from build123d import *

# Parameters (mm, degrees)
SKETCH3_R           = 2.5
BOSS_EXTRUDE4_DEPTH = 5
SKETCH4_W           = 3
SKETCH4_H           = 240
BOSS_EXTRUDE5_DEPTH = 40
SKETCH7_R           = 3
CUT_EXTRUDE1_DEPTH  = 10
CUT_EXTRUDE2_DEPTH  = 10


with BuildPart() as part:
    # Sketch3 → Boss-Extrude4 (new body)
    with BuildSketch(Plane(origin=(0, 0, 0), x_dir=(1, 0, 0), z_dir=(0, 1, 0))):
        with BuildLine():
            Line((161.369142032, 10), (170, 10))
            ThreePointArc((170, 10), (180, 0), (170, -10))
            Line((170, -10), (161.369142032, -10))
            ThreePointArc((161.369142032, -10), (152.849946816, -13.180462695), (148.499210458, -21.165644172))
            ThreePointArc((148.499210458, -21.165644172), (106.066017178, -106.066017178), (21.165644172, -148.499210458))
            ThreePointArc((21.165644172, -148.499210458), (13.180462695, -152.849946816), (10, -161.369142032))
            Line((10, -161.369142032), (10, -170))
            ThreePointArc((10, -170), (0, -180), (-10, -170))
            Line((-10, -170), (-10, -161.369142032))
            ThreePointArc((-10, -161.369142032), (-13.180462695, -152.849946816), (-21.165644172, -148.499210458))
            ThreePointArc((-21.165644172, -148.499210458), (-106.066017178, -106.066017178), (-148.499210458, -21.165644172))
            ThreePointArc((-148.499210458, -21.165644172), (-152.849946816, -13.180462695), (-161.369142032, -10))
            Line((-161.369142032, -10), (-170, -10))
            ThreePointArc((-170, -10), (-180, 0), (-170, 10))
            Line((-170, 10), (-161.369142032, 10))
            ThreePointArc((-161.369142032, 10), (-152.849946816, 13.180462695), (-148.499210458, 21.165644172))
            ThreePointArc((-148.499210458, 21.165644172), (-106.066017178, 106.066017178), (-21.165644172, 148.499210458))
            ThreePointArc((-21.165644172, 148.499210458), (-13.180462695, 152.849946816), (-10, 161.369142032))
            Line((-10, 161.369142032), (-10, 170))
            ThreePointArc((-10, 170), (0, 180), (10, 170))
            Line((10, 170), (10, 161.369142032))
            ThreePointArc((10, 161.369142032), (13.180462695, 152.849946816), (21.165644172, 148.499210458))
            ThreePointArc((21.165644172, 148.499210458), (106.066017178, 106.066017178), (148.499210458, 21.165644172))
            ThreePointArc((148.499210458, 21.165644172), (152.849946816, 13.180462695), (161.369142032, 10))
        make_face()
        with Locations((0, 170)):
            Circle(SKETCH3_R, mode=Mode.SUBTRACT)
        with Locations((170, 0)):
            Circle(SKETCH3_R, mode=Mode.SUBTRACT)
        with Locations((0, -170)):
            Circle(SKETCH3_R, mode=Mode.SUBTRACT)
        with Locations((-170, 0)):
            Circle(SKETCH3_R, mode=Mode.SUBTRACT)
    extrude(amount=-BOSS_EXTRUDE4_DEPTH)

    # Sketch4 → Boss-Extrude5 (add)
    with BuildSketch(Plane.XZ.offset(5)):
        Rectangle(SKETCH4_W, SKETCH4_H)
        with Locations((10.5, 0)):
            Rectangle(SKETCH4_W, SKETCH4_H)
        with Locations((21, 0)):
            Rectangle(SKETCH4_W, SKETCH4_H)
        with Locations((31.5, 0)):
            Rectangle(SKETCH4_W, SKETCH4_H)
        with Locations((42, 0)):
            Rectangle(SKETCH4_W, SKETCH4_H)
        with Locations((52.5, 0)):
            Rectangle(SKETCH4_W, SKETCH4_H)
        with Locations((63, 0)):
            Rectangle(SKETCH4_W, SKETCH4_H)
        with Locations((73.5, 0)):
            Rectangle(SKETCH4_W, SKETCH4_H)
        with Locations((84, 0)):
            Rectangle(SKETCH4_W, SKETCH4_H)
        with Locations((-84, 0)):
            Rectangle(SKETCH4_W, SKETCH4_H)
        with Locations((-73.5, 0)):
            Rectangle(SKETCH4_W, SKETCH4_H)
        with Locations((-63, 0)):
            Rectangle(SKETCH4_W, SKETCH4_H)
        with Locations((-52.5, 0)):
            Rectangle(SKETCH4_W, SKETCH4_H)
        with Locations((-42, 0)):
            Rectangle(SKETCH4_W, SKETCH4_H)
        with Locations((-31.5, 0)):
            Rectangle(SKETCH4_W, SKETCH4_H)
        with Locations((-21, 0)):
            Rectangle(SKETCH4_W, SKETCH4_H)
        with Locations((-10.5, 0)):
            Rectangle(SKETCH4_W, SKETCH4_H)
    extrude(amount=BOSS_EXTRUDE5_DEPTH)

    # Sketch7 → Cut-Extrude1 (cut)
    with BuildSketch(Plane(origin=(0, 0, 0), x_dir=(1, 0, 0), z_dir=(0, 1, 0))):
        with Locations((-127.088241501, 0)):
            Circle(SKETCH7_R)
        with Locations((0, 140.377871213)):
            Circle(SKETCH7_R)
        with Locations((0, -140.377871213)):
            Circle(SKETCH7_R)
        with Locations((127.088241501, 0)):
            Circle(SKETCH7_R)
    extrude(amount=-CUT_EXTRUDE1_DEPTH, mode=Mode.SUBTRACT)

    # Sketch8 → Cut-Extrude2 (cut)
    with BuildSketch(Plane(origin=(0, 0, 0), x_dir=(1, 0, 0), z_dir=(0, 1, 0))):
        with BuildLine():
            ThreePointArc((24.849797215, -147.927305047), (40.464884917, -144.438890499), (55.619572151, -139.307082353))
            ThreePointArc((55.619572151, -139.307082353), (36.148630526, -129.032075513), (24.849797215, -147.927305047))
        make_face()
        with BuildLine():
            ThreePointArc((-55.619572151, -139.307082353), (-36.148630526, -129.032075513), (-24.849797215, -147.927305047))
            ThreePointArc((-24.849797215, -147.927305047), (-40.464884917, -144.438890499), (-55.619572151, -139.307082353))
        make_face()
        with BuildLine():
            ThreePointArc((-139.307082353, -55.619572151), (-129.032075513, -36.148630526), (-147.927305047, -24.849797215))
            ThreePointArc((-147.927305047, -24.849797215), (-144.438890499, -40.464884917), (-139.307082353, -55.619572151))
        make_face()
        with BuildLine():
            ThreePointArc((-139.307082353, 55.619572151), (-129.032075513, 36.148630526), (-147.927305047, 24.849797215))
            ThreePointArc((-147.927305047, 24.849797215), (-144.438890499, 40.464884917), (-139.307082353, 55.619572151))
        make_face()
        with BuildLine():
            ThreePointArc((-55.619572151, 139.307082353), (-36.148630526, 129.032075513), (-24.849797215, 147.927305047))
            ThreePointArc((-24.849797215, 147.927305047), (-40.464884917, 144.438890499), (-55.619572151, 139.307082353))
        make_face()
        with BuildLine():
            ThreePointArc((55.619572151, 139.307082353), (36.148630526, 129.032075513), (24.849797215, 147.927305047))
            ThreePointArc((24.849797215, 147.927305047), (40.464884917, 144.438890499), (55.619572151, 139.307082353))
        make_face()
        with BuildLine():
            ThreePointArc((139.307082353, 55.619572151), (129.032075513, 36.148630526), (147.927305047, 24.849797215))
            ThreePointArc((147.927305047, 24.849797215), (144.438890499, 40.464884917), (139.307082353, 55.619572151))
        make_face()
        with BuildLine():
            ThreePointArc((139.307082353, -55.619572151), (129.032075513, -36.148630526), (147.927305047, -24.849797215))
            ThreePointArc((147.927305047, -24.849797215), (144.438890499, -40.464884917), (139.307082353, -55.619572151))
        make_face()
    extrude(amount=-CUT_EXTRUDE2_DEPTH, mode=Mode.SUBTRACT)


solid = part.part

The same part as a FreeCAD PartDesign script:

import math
import FreeCAD as App
import Part
import Sketcher


def add_polygon(sketch, points):
    """Adds a closed chain of lines whose ends are joined by coincident constraints."""
    first, n = sketch.GeometryCount, len(points)
    for a, b in zip(points, points[1:] + points[:1]):
        sketch.addGeometry(Part.LineSegment(App.Vector(*a, 0), App.Vector(*b, 0)), False)
    for i in range(n):
        sketch.addConstraint(Sketcher.Constraint("Coincident", first + i, 2, first + (i + 1) % n, 1))

doc = App.newDocument("Part")
body = doc.addObject("PartDesign::Body", "Body")

# Sketch on XZ plane
sketch1 = body.newObject("Sketcher::SketchObject", "Sketch")
sketch1.AttachmentSupport = (doc.getObject("XZ_Plane"), [""])
sketch1.MapMode = "FlatFace"
sketch1.addGeometry(Part.LineSegment(App.Vector(170, -10, 0), App.Vector(161.4, -10, 0)), False)
sketch1.addGeometry(Part.ArcOfCircle(Part.Circle(App.Vector(161.4, -23, 0), App.Vector(0, 0, 1), 13), math.radians(90), math.radians(172)), False)
sketch1.addGeometry(Part.ArcOfCircle(Part.Circle(App.Vector(0, 0, 0), App.Vector(0, 0, 1), 150), math.radians(-82), math.radians(-8)), False)
sketch1.addGeometry(Part.ArcOfCircle(Part.Circle(App.Vector(23, -161.4, 0), App.Vector(0, 0, 1), 13), math.radians(98), math.radians(180)), False)
sketch1.addGeometry(Part.LineSegment(App.Vector(10, -161.4, 0), App.Vector(10, -170, 0)), False)
sketch1.addGeometry(Part.ArcOfCircle(Part.Circle(App.Vector(0, -170, 0), App.Vector(0, 0, 1), 10), math.radians(180), math.radians(360)), False)
sketch1.addGeometry(Part.LineSegment(App.Vector(-10, -170, 0), App.Vector(-10, -161.4, 0)), False)
sketch1.addGeometry(Part.ArcOfCircle(Part.Circle(App.Vector(-23, -161.4, 0), App.Vector(0, 0, 1), 13), math.radians(0), math.radians(82)), False)
sketch1.addGeometry(Part.ArcOfCircle(Part.Circle(App.Vector(0, 0, 0), App.Vector(0, 0, 1), 150), math.radians(-172), math.radians(-98)), False)
sketch1.addGeometry(Part.ArcOfCircle(Part.Circle(App.Vector(-161.4, -23, 0), App.Vector(0, 0, 1), 13), math.radians(8), math.radians(90)), False)
sketch1.addGeometry(Part.LineSegment(App.Vector(-161.4, -10, 0), App.Vector(-170, -10, 0)), False)
sketch1.addGeometry(Part.ArcOfCircle(Part.Circle(App.Vector(-170, 0, 0), App.Vector(0, 0, 1), 10), math.radians(90), math.radians(270)), False)
sketch1.addGeometry(Part.LineSegment(App.Vector(-170, 10, 0), App.Vector(-161.4, 10, 0)), False)
sketch1.addGeometry(Part.ArcOfCircle(Part.Circle(App.Vector(-161.4, 23, 0), App.Vector(0, 0, 1), 13), math.radians(-90), math.radians(-8)), False)
sketch1.addGeometry(Part.ArcOfCircle(Part.Circle(App.Vector(0, 0, 0), App.Vector(0, 0, 1), 150), math.radians(98), math.radians(172)), False)
sketch1.addGeometry(Part.ArcOfCircle(Part.Circle(App.Vector(-23, 161.4, 0), App.Vector(0, 0, 1), 13), math.radians(-82), math.radians(0)), False)
sketch1.addGeometry(Part.LineSegment(App.Vector(-10, 161.4, 0), App.Vector(-10, 170, 0)), False)
sketch1.addGeometry(Part.ArcOfCircle(Part.Circle(App.Vector(0, 170, 0), App.Vector(0, 0, 1), 10), math.radians(0), math.radians(180)), False)
sketch1.addGeometry(Part.LineSegment(App.Vector(10, 170, 0), App.Vector(10, 161.4, 0)), False)
sketch1.addGeometry(Part.ArcOfCircle(Part.Circle(App.Vector(23, 161.4, 0), App.Vector(0, 0, 1), 13), math.radians(180), math.radians(262)), False)
sketch1.addGeometry(Part.ArcOfCircle(Part.Circle(App.Vector(0, 0, 0), App.Vector(0, 0, 1), 150), math.radians(8), math.radians(82)), False)
sketch1.addGeometry(Part.ArcOfCircle(Part.Circle(App.Vector(161.4, 23, 0), App.Vector(0, 0, 1), 13), math.radians(-172), math.radians(-90)), False)
sketch1.addGeometry(Part.LineSegment(App.Vector(161.4, 10, 0), App.Vector(170, 10, 0)), False)
sketch1.addGeometry(Part.ArcOfCircle(Part.Circle(App.Vector(170, 0, 0), App.Vector(0, 0, 1), 10), math.radians(-90), math.radians(90)), False)
sketch1.addGeometry(Part.Circle(App.Vector(0, 170, 0), App.Vector(0, 0, 1), 2.5), False)
sketch1.addGeometry(Part.Circle(App.Vector(170, 0, 0), App.Vector(0, 0, 1), 2.5), False)
sketch1.addGeometry(Part.Circle(App.Vector(-170, 0, 0), App.Vector(0, 0, 1), 2.5), False)
sketch1.addGeometry(Part.Circle(App.Vector(0, -170, 0), App.Vector(0, 0, 1), 2.5), False)
sketch1.addConstraint(Sketcher.Constraint("Tangent", 0, 2, 1, 1))
sketch1.addConstraint(Sketcher.Constraint("Tangent", 1, 2, 2, 2))
sketch1.addConstraint(Sketcher.Constraint("Tangent", 2, 1, 3, 1))
sketch1.addConstraint(Sketcher.Constraint("Tangent", 3, 2, 4, 1))
sketch1.addConstraint(Sketcher.Constraint("Tangent", 4, 2, 5, 2))
sketch1.addConstraint(Sketcher.Constraint("Tangent", 5, 1, 6, 1))
sketch1.addConstraint(Sketcher.Constraint("Tangent", 6, 2, 7, 1))
sketch1.addConstraint(Sketcher.Constraint("Tangent", 7, 2, 8, 2))
sketch1.addConstraint(Sketcher.Constraint("Tangent", 8, 1, 9, 1))
sketch1.addConstraint(Sketcher.Constraint("Tangent", 9, 2, 10, 1))
sketch1.addConstraint(Sketcher.Constraint("Tangent", 10, 2, 11, 2))
sketch1.addConstraint(Sketcher.Constraint("Tangent", 11, 1, 12, 1))
sketch1.addConstraint(Sketcher.Constraint("Tangent", 12, 2, 13, 1))
sketch1.addConstraint(Sketcher.Constraint("Tangent", 13, 2, 14, 2))
sketch1.addConstraint(Sketcher.Constraint("Tangent", 14, 1, 15, 1))
sketch1.addConstraint(Sketcher.Constraint("Tangent", 15, 2, 16, 1))
sketch1.addConstraint(Sketcher.Constraint("Tangent", 16, 2, 17, 2))
sketch1.addConstraint(Sketcher.Constraint("Tangent", 17, 1, 18, 1))
sketch1.addConstraint(Sketcher.Constraint("Tangent", 18, 2, 19, 1))
sketch1.addConstraint(Sketcher.Constraint("Tangent", 19, 2, 20, 2))
sketch1.addConstraint(Sketcher.Constraint("Tangent", 20, 1, 21, 1))
sketch1.addConstraint(Sketcher.Constraint("Tangent", 21, 2, 22, 1))
sketch1.addConstraint(Sketcher.Constraint("Tangent", 22, 2, 23, 2))
sketch1.addConstraint(Sketcher.Constraint("Tangent", 23, 1, 0, 1))
sketch1.addConstraint(Sketcher.Constraint("Horizontal", 0))
sketch1.addConstraint(Sketcher.Constraint("Vertical", 4))
sketch1.addConstraint(Sketcher.Constraint("Vertical", 6))
sketch1.addConstraint(Sketcher.Constraint("Horizontal", 10))
sketch1.addConstraint(Sketcher.Constraint("Horizontal", 12))
sketch1.addConstraint(Sketcher.Constraint("Vertical", 16))
sketch1.addConstraint(Sketcher.Constraint("Vertical", 18))
sketch1.addConstraint(Sketcher.Constraint("Horizontal", 22))
sketch1.addConstraint(Sketcher.Constraint("Coincident", 2, 3, -1, 1))
sketch1.addConstraint(Sketcher.Constraint("Coincident", 8, 3, -1, 1))
sketch1.addConstraint(Sketcher.Constraint("Coincident", 14, 3, -1, 1))
sketch1.addConstraint(Sketcher.Constraint("Coincident", 20, 3, -1, 1))
sketch1.addConstraint(Sketcher.Constraint("Coincident", 24, 3, 17, 3))
sketch1.addConstraint(Sketcher.Constraint("Coincident", 25, 3, 23, 3))
sketch1.addConstraint(Sketcher.Constraint("Coincident", 26, 3, 11, 3))
sketch1.addConstraint(Sketcher.Constraint("Coincident", 27, 3, 5, 3))
sketch1.addConstraint(Sketcher.Constraint("Equal", 1, 3))
sketch1.addConstraint(Sketcher.Constraint("Equal", 3, 7))
sketch1.addConstraint(Sketcher.Constraint("Equal", 2, 8))
sketch1.addConstraint(Sketcher.Constraint("Equal", 7, 9))
sketch1.addConstraint(Sketcher.Constraint("Equal", 5, 11))
sketch1.addConstraint(Sketcher.Constraint("Equal", 9, 13))
sketch1.addConstraint(Sketcher.Constraint("Equal", 8, 14))
sketch1.addConstraint(Sketcher.Constraint("Equal", 13, 15))
sketch1.addConstraint(Sketcher.Constraint("Equal", 11, 17))
sketch1.addConstraint(Sketcher.Constraint("Equal", 15, 19))
sketch1.addConstraint(Sketcher.Constraint("Equal", 14, 20))
sketch1.addConstraint(Sketcher.Constraint("Equal", 19, 21))
sketch1.addConstraint(Sketcher.Constraint("Equal", 17, 23))
sketch1.addConstraint(Sketcher.Constraint("Equal", 24, 25))
sketch1.addConstraint(Sketcher.Constraint("Equal", 25, 26))
sketch1.addConstraint(Sketcher.Constraint("Equal", 26, 27))
sketch1.addConstraint(Sketcher.Constraint("Symmetric", 5, 3, 17, 3, -1, 1))
sketch1.addConstraint(Sketcher.Constraint("Symmetric", 11, 3, 23, 3, -1, 1))
sketch1.addConstraint(Sketcher.Constraint("PointOnObject", 5, 3, -2))
sketch1.addConstraint(Sketcher.Constraint("PointOnObject", 11, 3, -1))
sketch1.addConstraint(Sketcher.Constraint("Equal", 22, 4))
sketch1.addConstraint(Sketcher.Constraint("Diameter", 24, 5.0))
sketch1.addConstraint(Sketcher.Constraint("Radius", 1, 13.0))
sketch1.addConstraint(Sketcher.Constraint("Radius", 2, 150.0))
sketch1.addConstraint(Sketcher.Constraint("Radius", 5, 10.0))
sketch1.addConstraint(Sketcher.Constraint("DistanceY", 5, 3, -1, 1, 170.0))
pad1 = body.newObject("PartDesign::Pad", "Pad")
pad1.Profile = sketch1
pad1.Length = 5

# Sketch on XZ plane
sketch2 = body.newObject("Sketcher::SketchObject", "Sketch001")
sketch2.AttachmentSupport = (doc.getObject("XZ_Plane"), [""])
sketch2.MapMode = "FlatFace"
sketch2.AttachmentOffset = App.Placement(App.Vector(0, 0, 5), App.Rotation())
add_polygon(sketch2, [(-1.5, 120), (-1.5, -120), (1.5, -120), (1.5, 120)])  # lines 0-3
add_polygon(sketch2, [(9, 120), (9, -120), (12, -120), (12, 120)])  # lines 4-7
add_polygon(sketch2, [(19.5, 120), (19.5, -120), (22.5, -120), (22.5, 120)])  # lines 8-11
add_polygon(sketch2, [(30, 120), (30, -120), (33, -120), (33, 120)])  # lines 12-15
add_polygon(sketch2, [(40.5, 120), (40.5, -120), (43.5, -120), (43.5, 120)])  # lines 16-19
add_polygon(sketch2, [(51, 120), (51, -120), (54, -120), (54, 120)])  # lines 20-23
add_polygon(sketch2, [(61.5, 120), (61.5, -120), (64.5, -120), (64.5, 120)])  # lines 24-27
add_polygon(sketch2, [(72, 120), (72, -120), (75, -120), (75, 120)])  # lines 28-31
add_polygon(sketch2, [(82.5, 120), (82.5, -120), (85.5, -120), (85.5, 120)])  # lines 32-35
add_polygon(sketch2, [(-85.5, 120), (-85.5, -120), (-82.5, -120), (-82.5, 120)])  # lines 36-39
add_polygon(sketch2, [(-75, 120), (-75, -120), (-72, -120), (-72, 120)])  # lines 40-43
add_polygon(sketch2, [(-64.5, 120), (-64.5, -120), (-61.5, -120), (-61.5, 120)])  # lines 44-47
add_polygon(sketch2, [(-54, 120), (-54, -120), (-51, -120), (-51, 120)])  # lines 48-51
add_polygon(sketch2, [(-43.5, 120), (-43.5, -120), (-40.5, -120), (-40.5, 120)])  # lines 52-55
add_polygon(sketch2, [(-33, 120), (-33, -120), (-30, -120), (-30, 120)])  # lines 56-59
add_polygon(sketch2, [(-22.5, 120), (-22.5, -120), (-19.5, -120), (-19.5, 120)])  # lines 60-63
add_polygon(sketch2, [(-12, 120), (-12, -120), (-9, -120), (-9, 120)])  # lines 64-67
sketch2.addConstraint(Sketcher.Constraint("Vertical", 0))
sketch2.addConstraint(Sketcher.Constraint("Horizontal", 1))
sketch2.addConstraint(Sketcher.Constraint("Vertical", 2))
sketch2.addConstraint(Sketcher.Constraint("Horizontal", 3))
sketch2.addConstraint(Sketcher.Constraint("Vertical", 4))
sketch2.addConstraint(Sketcher.Constraint("Horizontal", 5))
sketch2.addConstraint(Sketcher.Constraint("Vertical", 6))
sketch2.addConstraint(Sketcher.Constraint("Horizontal", 7))
sketch2.addConstraint(Sketcher.Constraint("Vertical", 8))
sketch2.addConstraint(Sketcher.Constraint("Horizontal", 9))
sketch2.addConstraint(Sketcher.Constraint("Vertical", 10))
sketch2.addConstraint(Sketcher.Constraint("Horizontal", 11))
sketch2.addConstraint(Sketcher.Constraint("Vertical", 12))
sketch2.addConstraint(Sketcher.Constraint("Horizontal", 13))
sketch2.addConstraint(Sketcher.Constraint("Vertical", 14))
sketch2.addConstraint(Sketcher.Constraint("Horizontal", 15))
sketch2.addConstraint(Sketcher.Constraint("Vertical", 16))
sketch2.addConstraint(Sketcher.Constraint("Horizontal", 17))
sketch2.addConstraint(Sketcher.Constraint("Vertical", 18))
sketch2.addConstraint(Sketcher.Constraint("Horizontal", 19))
sketch2.addConstraint(Sketcher.Constraint("Vertical", 20))
sketch2.addConstraint(Sketcher.Constraint("Horizontal", 21))
sketch2.addConstraint(Sketcher.Constraint("Vertical", 22))
sketch2.addConstraint(Sketcher.Constraint("Horizontal", 23))
sketch2.addConstraint(Sketcher.Constraint("Vertical", 24))
sketch2.addConstraint(Sketcher.Constraint("Horizontal", 25))
sketch2.addConstraint(Sketcher.Constraint("Vertical", 26))
sketch2.addConstraint(Sketcher.Constraint("Horizontal", 27))
sketch2.addConstraint(Sketcher.Constraint("Vertical", 28))
sketch2.addConstraint(Sketcher.Constraint("Horizontal", 29))
sketch2.addConstraint(Sketcher.Constraint("Vertical", 30))
sketch2.addConstraint(Sketcher.Constraint("Horizontal", 31))
sketch2.addConstraint(Sketcher.Constraint("Vertical", 32))
sketch2.addConstraint(Sketcher.Constraint("Horizontal", 33))
sketch2.addConstraint(Sketcher.Constraint("Vertical", 34))
sketch2.addConstraint(Sketcher.Constraint("Horizontal", 35))
sketch2.addConstraint(Sketcher.Constraint("Vertical", 36))
sketch2.addConstraint(Sketcher.Constraint("Horizontal", 37))
sketch2.addConstraint(Sketcher.Constraint("Vertical", 38))
sketch2.addConstraint(Sketcher.Constraint("Horizontal", 39))
sketch2.addConstraint(Sketcher.Constraint("Vertical", 40))
sketch2.addConstraint(Sketcher.Constraint("Horizontal", 41))
sketch2.addConstraint(Sketcher.Constraint("Vertical", 42))
sketch2.addConstraint(Sketcher.Constraint("Horizontal", 43))
sketch2.addConstraint(Sketcher.Constraint("Vertical", 44))
sketch2.addConstraint(Sketcher.Constraint("Horizontal", 45))
sketch2.addConstraint(Sketcher.Constraint("Vertical", 46))
sketch2.addConstraint(Sketcher.Constraint("Horizontal", 47))
sketch2.addConstraint(Sketcher.Constraint("Vertical", 48))
sketch2.addConstraint(Sketcher.Constraint("Horizontal", 49))
sketch2.addConstraint(Sketcher.Constraint("Vertical", 50))
sketch2.addConstraint(Sketcher.Constraint("Horizontal", 51))
sketch2.addConstraint(Sketcher.Constraint("Vertical", 52))
sketch2.addConstraint(Sketcher.Constraint("Horizontal", 53))
sketch2.addConstraint(Sketcher.Constraint("Vertical", 54))
sketch2.addConstraint(Sketcher.Constraint("Horizontal", 55))
sketch2.addConstraint(Sketcher.Constraint("Vertical", 56))
sketch2.addConstraint(Sketcher.Constraint("Horizontal", 57))
sketch2.addConstraint(Sketcher.Constraint("Vertical", 58))
sketch2.addConstraint(Sketcher.Constraint("Horizontal", 59))
sketch2.addConstraint(Sketcher.Constraint("Vertical", 60))
sketch2.addConstraint(Sketcher.Constraint("Horizontal", 61))
sketch2.addConstraint(Sketcher.Constraint("Vertical", 62))
sketch2.addConstraint(Sketcher.Constraint("Horizontal", 63))
sketch2.addConstraint(Sketcher.Constraint("Vertical", 64))
sketch2.addConstraint(Sketcher.Constraint("Horizontal", 65))
sketch2.addConstraint(Sketcher.Constraint("Vertical", 66))
sketch2.addConstraint(Sketcher.Constraint("Horizontal", 67))
sketch2.addConstraint(Sketcher.Constraint("Symmetric", 0, 2, 2, 2, -1, 1))
sketch2.addConstraint(Sketcher.Constraint("Symmetric", 34, 2, 36, 2, -1, 1))
sketch2.addConstraint(Sketcher.Constraint("Symmetric", 32, 2, 38, 2, -1, 1))
sketch2.addConstraint(Sketcher.Constraint("Symmetric", 30, 2, 40, 2, -1, 1))
sketch2.addConstraint(Sketcher.Constraint("Symmetric", 28, 2, 42, 2, -1, 1))
sketch2.addConstraint(Sketcher.Constraint("Symmetric", 26, 2, 44, 2, -1, 1))
sketch2.addConstraint(Sketcher.Constraint("Symmetric", 24, 2, 46, 2, -1, 1))
sketch2.addConstraint(Sketcher.Constraint("Symmetric", 22, 2, 48, 2, -1, 1))
sketch2.addConstraint(Sketcher.Constraint("Symmetric", 20, 2, 50, 2, -1, 1))
sketch2.addConstraint(Sketcher.Constraint("Symmetric", 18, 2, 52, 2, -1, 1))
sketch2.addConstraint(Sketcher.Constraint("Symmetric", 16, 2, 54, 2, -1, 1))
sketch2.addConstraint(Sketcher.Constraint("Symmetric", 14, 2, 56, 2, -1, 1))
sketch2.addConstraint(Sketcher.Constraint("Symmetric", 12, 2, 58, 2, -1, 1))
sketch2.addConstraint(Sketcher.Constraint("Symmetric", 10, 2, 60, 2, -1, 1))
sketch2.addConstraint(Sketcher.Constraint("Symmetric", 8, 2, 62, 2, -1, 1))
sketch2.addConstraint(Sketcher.Constraint("Symmetric", 6, 2, 64, 2, -1, 1))
sketch2.addConstraint(Sketcher.Constraint("Symmetric", 4, 2, 66, 2, -1, 1))
sketch2.addConstraint(Sketcher.Constraint("Horizontal", 1, 2, 4, 2))
sketch2.addConstraint(Sketcher.Constraint("Horizontal", 3, 2, 6, 2))
sketch2.addConstraint(Sketcher.Constraint("Horizontal", 5, 2, 8, 2))
sketch2.addConstraint(Sketcher.Constraint("Horizontal", 7, 2, 10, 2))
sketch2.addConstraint(Sketcher.Constraint("Horizontal", 9, 2, 12, 2))
sketch2.addConstraint(Sketcher.Constraint("Horizontal", 11, 2, 14, 2))
sketch2.addConstraint(Sketcher.Constraint("Horizontal", 13, 2, 16, 2))
sketch2.addConstraint(Sketcher.Constraint("Horizontal", 15, 2, 18, 2))
sketch2.addConstraint(Sketcher.Constraint("Horizontal", 17, 2, 20, 2))
sketch2.addConstraint(Sketcher.Constraint("Horizontal", 19, 2, 22, 2))
sketch2.addConstraint(Sketcher.Constraint("Horizontal", 21, 2, 24, 2))
sketch2.addConstraint(Sketcher.Constraint("Horizontal", 23, 2, 26, 2))
sketch2.addConstraint(Sketcher.Constraint("Horizontal", 25, 2, 28, 2))
sketch2.addConstraint(Sketcher.Constraint("Horizontal", 27, 2, 30, 2))
sketch2.addConstraint(Sketcher.Constraint("Horizontal", 29, 2, 32, 2))
sketch2.addConstraint(Sketcher.Constraint("Horizontal", 31, 2, 34, 2))
sketch2.addConstraint(Sketcher.Constraint("Equal", 3, 5))
sketch2.addConstraint(Sketcher.Constraint("Equal", 7, 9))
sketch2.addConstraint(Sketcher.Constraint("Equal", 11, 13))
sketch2.addConstraint(Sketcher.Constraint("Equal", 15, 17))
sketch2.addConstraint(Sketcher.Constraint("Equal", 19, 21))
sketch2.addConstraint(Sketcher.Constraint("Equal", 23, 25))
sketch2.addConstraint(Sketcher.Constraint("Equal", 27, 29))
sketch2.addConstraint(Sketcher.Constraint("Equal", 31, 33))
sketch2.addConstraint(Sketcher.Constraint("DistanceX", 1, 1, 1, 2, 3.0))
sketch2.addConstraint(Sketcher.Constraint("DistanceY", 0, 2, 0, 1, 240.0))
sketch2.addConstraint(Sketcher.Constraint("DistanceX", -1, 1, 4, 2, 9.0))
sketch2.addConstraint(Sketcher.Constraint("DistanceX", -1, 1, 12, 2, 30.0))
sketch2.addConstraint(Sketcher.Constraint("DistanceX", -1, 1, 20, 2, 51.0))
sketch2.addConstraint(Sketcher.Constraint("DistanceX", -1, 1, 28, 2, 72.0))
sketch2.addConstraint(Sketcher.Constraint("DistanceX", -1, 1, 8, 2, 19.5))
sketch2.addConstraint(Sketcher.Constraint("DistanceX", -1, 1, 16, 2, 40.5))
sketch2.addConstraint(Sketcher.Constraint("DistanceX", -1, 1, 24, 2, 61.5))
sketch2.addConstraint(Sketcher.Constraint("DistanceX", -1, 1, 32, 2, 82.5))
pad2 = body.newObject("PartDesign::Pad", "Pad001")
pad2.Profile = sketch2
pad2.Length = 40

# Sketch on XZ plane
sketch3 = body.newObject("Sketcher::SketchObject", "Sketch002")
sketch3.AttachmentSupport = (doc.getObject("XZ_Plane"), [""])
sketch3.MapMode = "FlatFace"
sketch3.addGeometry(Part.Circle(App.Vector(-127.1, 0, 0), App.Vector(0, 0, 1), 3), False)
sketch3.addGeometry(Part.Circle(App.Vector(0, -140.4, 0), App.Vector(0, 0, 1), 3), False)
sketch3.addGeometry(Part.Circle(App.Vector(0, 140.4, 0), App.Vector(0, 0, 1), 3), False)
sketch3.addGeometry(Part.Circle(App.Vector(127.1, 0, 0), App.Vector(0, 0, 1), 3), False)
sketch3.addConstraint(Sketcher.Constraint("Equal", 0, 1))
sketch3.addConstraint(Sketcher.Constraint("Equal", 1, 2))
sketch3.addConstraint(Sketcher.Constraint("Equal", 2, 3))
sketch3.addConstraint(Sketcher.Constraint("Symmetric", 1, 3, 2, 3, -1, 1))
sketch3.addConstraint(Sketcher.Constraint("Symmetric", 0, 3, 3, 3, -1, 1))
sketch3.addConstraint(Sketcher.Constraint("PointOnObject", 0, 3, -1))
sketch3.addConstraint(Sketcher.Constraint("PointOnObject", 1, 3, -2))
sketch3.addConstraint(Sketcher.Constraint("Diameter", 0, 6.0))
sketch3.addConstraint(Sketcher.Constraint("DistanceX", 0, 3, -1, 1, 127.088242))
sketch3.addConstraint(Sketcher.Constraint("DistanceY", 1, 3, -1, 1, 140.377871))
pocket1 = body.newObject("PartDesign::Pocket", "Pocket")
pocket1.Profile = sketch3
pocket1.Length = 10
pocket1.Reversed = True

# Sketch on XZ plane
sketch4 = body.newObject("Sketcher::SketchObject", "Sketch003")
sketch4.AttachmentSupport = (doc.getObject("XZ_Plane"), [""])
sketch4.MapMode = "FlatFace"
sketch4.addGeometry(Part.ArcOfCircle(Part.Circle(App.Vector(0, 0, 0), App.Vector(0, 0, 1), 150), math.radians(68.24), math.radians(80.46)), False)
sketch4.addGeometry(Part.ArcOfCircle(Part.Circle(App.Vector(40, 144, 0), App.Vector(0, 0, 1), 16), math.radians(167), math.radians(341)), False)
sketch4.addGeometry(Part.ArcOfCircle(Part.Circle(App.Vector(-40, 144, 0), App.Vector(0, 0, 1), 16), math.radians(-161), math.radians(13)), False)
sketch4.addGeometry(Part.ArcOfCircle(Part.Circle(App.Vector(0, 0, 0), App.Vector(0, 0, 1), 150), math.radians(99.54), math.radians(111.76)), False)
sketch4.addGeometry(Part.ArcOfCircle(Part.Circle(App.Vector(-144, 40, 0), App.Vector(0, 0, 1), 16), math.radians(-103), math.radians(71)), False)
sketch4.addGeometry(Part.ArcOfCircle(Part.Circle(App.Vector(0, 0, 0), App.Vector(0, 0, 1), 150), math.radians(158.24), math.radians(170.46)), False)
sketch4.addGeometry(Part.ArcOfCircle(Part.Circle(App.Vector(-144, -40, 0), App.Vector(0, 0, 1), 16), math.radians(-71), math.radians(103)), False)
sketch4.addGeometry(Part.ArcOfCircle(Part.Circle(App.Vector(0, 0, 0), App.Vector(0, 0, 1), 150), math.radians(-170.46), math.radians(-158.24)), False)
sketch4.addGeometry(Part.ArcOfCircle(Part.Circle(App.Vector(-40, -144, 0), App.Vector(0, 0, 1), 16), math.radians(-13), math.radians(161)), False)
sketch4.addGeometry(Part.ArcOfCircle(Part.Circle(App.Vector(0, 0, 0), App.Vector(0, 0, 1), 150), math.radians(-111.76), math.radians(-99.54)), False)
sketch4.addGeometry(Part.ArcOfCircle(Part.Circle(App.Vector(40, -144, 0), App.Vector(0, 0, 1), 16), math.radians(19), math.radians(193)), False)
sketch4.addGeometry(Part.ArcOfCircle(Part.Circle(App.Vector(0, 0, 0), App.Vector(0, 0, 1), 150), math.radians(-80.46), math.radians(-68.24)), False)
sketch4.addGeometry(Part.ArcOfCircle(Part.Circle(App.Vector(144, -40, 0), App.Vector(0, 0, 1), 16), math.radians(77), math.radians(251)), False)
sketch4.addGeometry(Part.ArcOfCircle(Part.Circle(App.Vector(0, 0, 0), App.Vector(0, 0, 1), 150), math.radians(-21.76), math.radians(-9.54)), False)
sketch4.addGeometry(Part.ArcOfCircle(Part.Circle(App.Vector(144, 40, 0), App.Vector(0, 0, 1), 16), math.radians(109), math.radians(283)), False)
sketch4.addGeometry(Part.ArcOfCircle(Part.Circle(App.Vector(0, 0, 0), App.Vector(0, 0, 1), 150), math.radians(9.54), math.radians(21.76)), False)
sketch4.addConstraint(Sketcher.Constraint("Coincident", 0, 1, 1, 2))
sketch4.addConstraint(Sketcher.Constraint("Coincident", 1, 1, 0, 2))
sketch4.addConstraint(Sketcher.Constraint("Coincident", 2, 1, 3, 2))
sketch4.addConstraint(Sketcher.Constraint("Coincident", 3, 1, 2, 2))
sketch4.addConstraint(Sketcher.Constraint("Coincident", 4, 1, 5, 2))
sketch4.addConstraint(Sketcher.Constraint("Coincident", 5, 1, 4, 2))
sketch4.addConstraint(Sketcher.Constraint("Coincident", 6, 1, 7, 2))
sketch4.addConstraint(Sketcher.Constraint("Coincident", 7, 1, 6, 2))
sketch4.addConstraint(Sketcher.Constraint("Coincident", 8, 1, 9, 2))
sketch4.addConstraint(Sketcher.Constraint("Coincident", 9, 1, 8, 2))
sketch4.addConstraint(Sketcher.Constraint("Coincident", 10, 1, 11, 2))
sketch4.addConstraint(Sketcher.Constraint("Coincident", 11, 1, 10, 2))
sketch4.addConstraint(Sketcher.Constraint("Coincident", 12, 1, 13, 2))
sketch4.addConstraint(Sketcher.Constraint("Coincident", 13, 1, 12, 2))
sketch4.addConstraint(Sketcher.Constraint("Coincident", 14, 1, 15, 2))
sketch4.addConstraint(Sketcher.Constraint("Coincident", 15, 1, 14, 2))
sketch4.addConstraint(Sketcher.Constraint("Coincident", 0, 3, -1, 1))
sketch4.addConstraint(Sketcher.Constraint("Coincident", 3, 3, -1, 1))
sketch4.addConstraint(Sketcher.Constraint("Coincident", 5, 3, -1, 1))
sketch4.addConstraint(Sketcher.Constraint("Coincident", 7, 3, -1, 1))
sketch4.addConstraint(Sketcher.Constraint("Coincident", 9, 3, -1, 1))
sketch4.addConstraint(Sketcher.Constraint("Coincident", 11, 3, -1, 1))
sketch4.addConstraint(Sketcher.Constraint("Coincident", 13, 3, -1, 1))
sketch4.addConstraint(Sketcher.Constraint("Coincident", 15, 3, -1, 1))
sketch4.addConstraint(Sketcher.Constraint("Equal", 1, 2))
sketch4.addConstraint(Sketcher.Constraint("Equal", 0, 3))
sketch4.addConstraint(Sketcher.Constraint("Equal", 2, 4))
sketch4.addConstraint(Sketcher.Constraint("Equal", 3, 5))
sketch4.addConstraint(Sketcher.Constraint("Equal", 4, 6))
sketch4.addConstraint(Sketcher.Constraint("Equal", 5, 7))
sketch4.addConstraint(Sketcher.Constraint("Equal", 6, 8))
sketch4.addConstraint(Sketcher.Constraint("Equal", 7, 9))
sketch4.addConstraint(Sketcher.Constraint("Equal", 8, 10))
sketch4.addConstraint(Sketcher.Constraint("Equal", 9, 11))
sketch4.addConstraint(Sketcher.Constraint("Equal", 10, 12))
sketch4.addConstraint(Sketcher.Constraint("Equal", 11, 13))
sketch4.addConstraint(Sketcher.Constraint("Equal", 12, 14))
sketch4.addConstraint(Sketcher.Constraint("Equal", 13, 15))
sketch4.addConstraint(Sketcher.Constraint("Symmetric", 1, 3, 8, 3, -1, 1))
sketch4.addConstraint(Sketcher.Constraint("Symmetric", 2, 3, 10, 3, -1, 1))
sketch4.addConstraint(Sketcher.Constraint("Symmetric", 4, 3, 12, 3, -1, 1))
sketch4.addConstraint(Sketcher.Constraint("Symmetric", 6, 3, 14, 3, -1, 1))
sketch4.addConstraint(Sketcher.Constraint("Symmetric", 1, 3, 2, 3, -2))
sketch4.addConstraint(Sketcher.Constraint("Symmetric", 6, 3, 12, 3, -2))
sketch4.addConstraint(Sketcher.Constraint("Radius", 0, 150.0))
sketch4.addConstraint(Sketcher.Constraint("Radius", 1, 16.0))
sketch4.addConstraint(Sketcher.Constraint("DistanceY", -1, 1, 1, 3, 144.438891))
sketch4.addConstraint(Sketcher.Constraint("DistanceX", 4, 3, -1, 1, 144.438891))
sketch4.addConstraint(Sketcher.Constraint("DistanceX", 2, 3, 1, 3, 80.92977))
sketch4.addConstraint(Sketcher.Constraint("DistanceY", 6, 3, 4, 3, 80.92977))
pocket2 = body.newObject("PartDesign::Pocket", "Pocket001")
pocket2.Profile = sketch4
pocket2.Length = 10
pocket2.Reversed = True

doc.recompute()
